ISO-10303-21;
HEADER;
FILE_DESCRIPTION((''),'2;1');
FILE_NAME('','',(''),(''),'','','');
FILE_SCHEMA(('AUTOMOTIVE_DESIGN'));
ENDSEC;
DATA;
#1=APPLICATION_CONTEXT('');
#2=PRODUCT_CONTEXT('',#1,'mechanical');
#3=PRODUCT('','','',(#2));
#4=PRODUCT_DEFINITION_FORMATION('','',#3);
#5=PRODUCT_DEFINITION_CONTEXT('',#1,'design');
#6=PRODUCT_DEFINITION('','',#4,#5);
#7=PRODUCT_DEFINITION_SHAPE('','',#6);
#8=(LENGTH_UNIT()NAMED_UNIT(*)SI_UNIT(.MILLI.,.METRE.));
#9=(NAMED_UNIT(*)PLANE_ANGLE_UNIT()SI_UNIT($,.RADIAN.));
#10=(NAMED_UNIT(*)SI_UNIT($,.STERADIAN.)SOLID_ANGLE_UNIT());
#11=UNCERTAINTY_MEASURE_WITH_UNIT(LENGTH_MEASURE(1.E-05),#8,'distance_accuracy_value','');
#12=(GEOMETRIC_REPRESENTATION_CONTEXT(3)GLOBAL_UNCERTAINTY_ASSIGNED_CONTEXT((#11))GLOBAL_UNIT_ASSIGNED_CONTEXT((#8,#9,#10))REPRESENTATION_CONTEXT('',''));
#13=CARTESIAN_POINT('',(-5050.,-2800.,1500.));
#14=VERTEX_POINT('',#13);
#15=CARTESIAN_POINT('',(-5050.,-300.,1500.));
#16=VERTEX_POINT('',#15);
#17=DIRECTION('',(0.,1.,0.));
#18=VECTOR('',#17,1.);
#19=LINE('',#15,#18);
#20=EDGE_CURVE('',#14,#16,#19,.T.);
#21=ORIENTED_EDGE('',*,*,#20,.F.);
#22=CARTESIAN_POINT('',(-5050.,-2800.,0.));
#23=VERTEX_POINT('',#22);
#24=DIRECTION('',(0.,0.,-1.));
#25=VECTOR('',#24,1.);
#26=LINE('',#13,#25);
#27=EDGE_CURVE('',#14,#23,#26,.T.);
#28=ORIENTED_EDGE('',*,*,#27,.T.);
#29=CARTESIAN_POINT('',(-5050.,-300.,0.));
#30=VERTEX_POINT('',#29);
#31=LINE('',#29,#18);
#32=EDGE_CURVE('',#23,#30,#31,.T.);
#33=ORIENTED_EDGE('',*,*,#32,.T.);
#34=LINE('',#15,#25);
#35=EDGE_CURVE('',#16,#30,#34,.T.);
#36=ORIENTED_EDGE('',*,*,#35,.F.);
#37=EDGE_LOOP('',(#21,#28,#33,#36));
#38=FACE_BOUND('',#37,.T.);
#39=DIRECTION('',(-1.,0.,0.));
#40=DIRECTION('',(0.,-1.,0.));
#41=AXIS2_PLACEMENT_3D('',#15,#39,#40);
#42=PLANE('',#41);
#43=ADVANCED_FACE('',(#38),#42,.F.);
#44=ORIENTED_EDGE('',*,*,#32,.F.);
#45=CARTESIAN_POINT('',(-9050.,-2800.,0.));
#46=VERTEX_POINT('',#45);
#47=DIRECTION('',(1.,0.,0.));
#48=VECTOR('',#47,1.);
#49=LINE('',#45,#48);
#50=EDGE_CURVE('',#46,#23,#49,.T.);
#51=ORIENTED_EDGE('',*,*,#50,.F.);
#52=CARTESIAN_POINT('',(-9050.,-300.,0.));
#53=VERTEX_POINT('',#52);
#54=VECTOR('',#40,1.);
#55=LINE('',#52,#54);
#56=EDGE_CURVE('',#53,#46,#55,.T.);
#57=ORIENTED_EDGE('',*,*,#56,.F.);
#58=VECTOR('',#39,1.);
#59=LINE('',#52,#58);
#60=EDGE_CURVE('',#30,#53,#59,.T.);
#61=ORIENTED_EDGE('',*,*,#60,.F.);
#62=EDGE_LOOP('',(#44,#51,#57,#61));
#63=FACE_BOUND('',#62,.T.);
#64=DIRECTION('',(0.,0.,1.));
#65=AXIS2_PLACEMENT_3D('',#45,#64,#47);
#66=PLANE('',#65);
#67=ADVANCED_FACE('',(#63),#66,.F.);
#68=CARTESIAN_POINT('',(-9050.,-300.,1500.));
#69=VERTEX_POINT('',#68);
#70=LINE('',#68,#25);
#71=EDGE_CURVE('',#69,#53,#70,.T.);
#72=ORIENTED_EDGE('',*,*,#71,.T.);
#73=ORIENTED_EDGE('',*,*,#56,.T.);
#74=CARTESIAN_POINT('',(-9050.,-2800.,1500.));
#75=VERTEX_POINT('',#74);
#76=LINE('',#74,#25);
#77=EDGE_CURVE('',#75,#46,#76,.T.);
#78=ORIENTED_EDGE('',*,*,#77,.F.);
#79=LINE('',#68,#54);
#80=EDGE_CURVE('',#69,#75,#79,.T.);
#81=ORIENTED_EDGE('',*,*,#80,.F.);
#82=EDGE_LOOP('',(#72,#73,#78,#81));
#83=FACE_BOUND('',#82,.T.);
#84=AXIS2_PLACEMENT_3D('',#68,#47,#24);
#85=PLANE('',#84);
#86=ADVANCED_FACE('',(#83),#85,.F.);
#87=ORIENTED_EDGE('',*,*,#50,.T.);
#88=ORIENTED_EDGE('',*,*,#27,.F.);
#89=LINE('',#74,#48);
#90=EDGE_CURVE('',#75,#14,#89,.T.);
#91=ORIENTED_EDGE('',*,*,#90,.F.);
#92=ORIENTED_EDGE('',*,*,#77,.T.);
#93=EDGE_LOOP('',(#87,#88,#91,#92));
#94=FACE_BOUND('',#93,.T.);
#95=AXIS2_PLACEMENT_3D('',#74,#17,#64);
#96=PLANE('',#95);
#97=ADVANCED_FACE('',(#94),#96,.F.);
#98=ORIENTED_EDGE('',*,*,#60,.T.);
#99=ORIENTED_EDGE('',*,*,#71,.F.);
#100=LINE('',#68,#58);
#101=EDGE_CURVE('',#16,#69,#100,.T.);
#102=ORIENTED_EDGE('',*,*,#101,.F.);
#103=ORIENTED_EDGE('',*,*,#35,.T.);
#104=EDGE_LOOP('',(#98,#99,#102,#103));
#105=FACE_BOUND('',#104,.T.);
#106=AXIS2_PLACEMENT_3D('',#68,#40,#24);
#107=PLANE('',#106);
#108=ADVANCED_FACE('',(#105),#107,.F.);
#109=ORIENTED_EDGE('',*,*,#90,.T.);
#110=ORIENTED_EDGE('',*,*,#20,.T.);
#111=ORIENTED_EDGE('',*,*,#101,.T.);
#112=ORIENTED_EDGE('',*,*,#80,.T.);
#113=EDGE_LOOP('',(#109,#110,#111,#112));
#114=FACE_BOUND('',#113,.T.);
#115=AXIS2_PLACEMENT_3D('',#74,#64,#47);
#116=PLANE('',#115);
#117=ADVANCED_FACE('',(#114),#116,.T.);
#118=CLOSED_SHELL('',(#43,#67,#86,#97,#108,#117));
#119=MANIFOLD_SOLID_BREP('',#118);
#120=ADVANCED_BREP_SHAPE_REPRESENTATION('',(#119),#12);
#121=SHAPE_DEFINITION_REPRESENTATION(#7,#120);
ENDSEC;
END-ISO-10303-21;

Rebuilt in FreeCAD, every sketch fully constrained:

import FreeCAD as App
import Part
import Sketcher
Q = App.Units.Quantity


def add_polygon(sketch, points):
    """Adds a closed chain of lines whose ends are joined by coincident constraints."""
    first, n = sketch.GeometryCount, len(points)
    for a, b in zip(points, points[1:] + points[:1]):
        sketch.addGeometry(Part.LineSegment(App.Vector(*a, 0), App.Vector(*b, 0)), False)
    for i in range(n):
        sketch.addConstraint(Sketcher.Constraint("Coincident", first + i, 2, first + (i + 1) % n, 1))

doc = App.newDocument("Part")
body = doc.addObject("PartDesign::Body", "Body")

# Sketch on XY plane
sketch1 = body.newObject("Sketcher::SketchObject", "Sketch")
sketch1.AttachmentSupport = (doc.getObject("XY_Plane"), [""])
sketch1.MapMode = "FlatFace"
add_polygon(sketch1, [(-9050, -300), (-9050, -2800), (-5050, -2800), (-5050, -300)])  # lines 0-3
sketch1.addConstraint(Sketcher.Constraint("Vertical", 0))
sketch1.addConstraint(Sketcher.Constraint("Horizontal", 1))
sketch1.addConstraint(Sketcher.Constraint("Vertical", 2))
sketch1.addConstraint(Sketcher.Constraint("Horizontal", 3))
sketch1.addConstraint(Sketcher.Constraint("DistanceX", 1, 1, 1, 2, Q("4000 mm")))
sketch1.addConstraint(Sketcher.Constraint("DistanceY", 0, 2, 0, 1, Q("2500 mm")))
sketch1.addConstraint(Sketcher.Constraint("DistanceX", 0, 2, -1, 1, Q("9050 mm")))
sketch1.addConstraint(Sketcher.Constraint("DistanceY", 0, 2, -1, 1, Q("2800 mm")))
pad1 = body.newObject("PartDesign::Pad", "Pad")
pad1.Profile = sketch1
pad1.Length = 1500

doc.recompute()
